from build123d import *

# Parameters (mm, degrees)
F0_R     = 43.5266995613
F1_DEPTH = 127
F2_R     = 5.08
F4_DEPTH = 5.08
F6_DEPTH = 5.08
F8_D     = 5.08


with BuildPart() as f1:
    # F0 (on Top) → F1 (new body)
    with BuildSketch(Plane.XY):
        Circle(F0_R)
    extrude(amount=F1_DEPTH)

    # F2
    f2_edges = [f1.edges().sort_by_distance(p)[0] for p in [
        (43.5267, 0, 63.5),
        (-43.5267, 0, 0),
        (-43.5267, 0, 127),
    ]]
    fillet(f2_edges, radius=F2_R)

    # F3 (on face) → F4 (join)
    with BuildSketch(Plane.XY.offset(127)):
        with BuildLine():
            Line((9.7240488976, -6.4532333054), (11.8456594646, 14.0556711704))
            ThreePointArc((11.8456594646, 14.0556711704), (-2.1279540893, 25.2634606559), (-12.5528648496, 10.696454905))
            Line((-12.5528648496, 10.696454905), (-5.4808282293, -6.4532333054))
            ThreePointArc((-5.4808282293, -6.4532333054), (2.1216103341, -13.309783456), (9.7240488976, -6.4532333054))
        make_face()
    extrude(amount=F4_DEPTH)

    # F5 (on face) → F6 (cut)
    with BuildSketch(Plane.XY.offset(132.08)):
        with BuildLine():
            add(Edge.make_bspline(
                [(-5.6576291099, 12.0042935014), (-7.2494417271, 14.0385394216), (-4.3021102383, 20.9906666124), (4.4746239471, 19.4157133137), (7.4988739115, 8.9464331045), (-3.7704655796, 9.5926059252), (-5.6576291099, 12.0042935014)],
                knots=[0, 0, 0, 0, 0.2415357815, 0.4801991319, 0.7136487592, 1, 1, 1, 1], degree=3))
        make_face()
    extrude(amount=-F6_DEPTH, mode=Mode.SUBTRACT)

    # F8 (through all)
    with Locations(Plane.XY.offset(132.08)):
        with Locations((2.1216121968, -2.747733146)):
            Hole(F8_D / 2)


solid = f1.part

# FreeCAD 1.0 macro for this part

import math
import FreeCAD as App
import Part
import Sketcher
Q = App.Units.Quantity

doc = App.newDocument("Part")
body = doc.addObject("PartDesign::Body", "Body")

# Sketch on XY plane
sketch1 = body.newObject("Sketcher::SketchObject", "Sketch")
sketch1.AttachmentSupport = (doc.getObject("XY_Plane"), [""])
sketch1.MapMode = "FlatFace"
sketch1.addGeometry(Part.Circle(App.Vector(0, 0, 0), App.Vector(0, 0, 1), 44), False)
sketch1.addConstraint([
    Sketcher.Constraint("Coincident", 0, 3, -1, 1),
    Sketcher.Constraint("Diameter", 0, Q("87.053399 mm")),
])
pad1 = body.newObject("PartDesign::Pad", "Pad")
pad1.Profile = sketch1
pad1.Length = Q("5 in")
doc.recompute()

fillet = body.newObject("PartDesign::Fillet", "Fillet")
fillet.Base = (pad1, ["Edge1"])
fillet.UseAllEdges = True
fillet.Radius = Q("0.2 in")

# Sketch on XY plane
sketch2 = body.newObject("Sketcher::SketchObject", "Sketch001")
sketch2.AttachmentSupport = (doc.getObject("XY_Plane"), [""])
sketch2.MapMode = "FlatFace"
sketch2.AttachmentOffset = App.Placement(App.Vector(0, 0, 5 * 25.4), App.Rotation())
sketch2.addGeometry([
    Part.LineSegment(App.Vector(10, -6, 0), App.Vector(12, 14, 0)),
    Part.ArcOfCircle(Part.Circle(App.Vector(0, 13, 0), App.Vector(0, 0, 1), 12), math.radians(5), math.radians(191)),
    Part.LineSegment(App.Vector(-13, 11, 0), App.Vector(-5, -6, 0)),
    Part.ArcOfCircle(Part.Circle(App.Vector(2, -6, 0), App.Vector(0, 0, 1), 8), math.radians(-174), math.radians(-6)),
], False)
sketch2.addConstraint([
    Sketcher.Constraint("Coincident", 0, 2, 1, 1),
    Sketcher.Constraint("Coincident", 1, 2, 2, 1),
    Sketcher.Constraint("Coincident", 2, 2, 3, 1),
    Sketcher.Constraint("Tangent", 3, 2, 0, 1),
    Sketcher.Constraint("Horizontal", 2, 2, 3, 2),
    Sketcher.Constraint("Radius", 1, Q("12.33289 mm")),
    Sketcher.Constraint("Radius", 3, Q("7.643009 mm")),
    Sketcher.Constraint("DistanceY", 3, 3, 1, 3, Q("18.712601 mm")),
    Sketcher.Constraint("Distance", 0, Q("20.618351 mm")),
    Sketcher.Constraint("Distance", 2, Q("18.55062 mm")),
    Sketcher.Constraint("DistanceX", -1, 1, 3, 3, Q("2.12161 mm")),
    Sketcher.Constraint("DistanceX", -1, 1, 0, 2, Q("11.845659 mm")),
    Sketcher.Constraint("DistanceY", -1, 1, 0, 2, Q("14.055671 mm")),
])
pad2 = body.newObject("PartDesign::Pad", "Pad001")
pad2.Profile = sketch2
pad2.Length = Q("0.2 in")

# Sketch on XY plane
sketch3 = body.newObject("Sketcher::SketchObject", "Sketch002")
sketch3.AttachmentSupport = (doc.getObject("XY_Plane"), [""])
sketch3.MapMode = "FlatFace"
sketch3.AttachmentOffset = App.Placement(App.Vector(0, 0, 5.2 * 25.4), App.Rotation())
sketch3.addGeometry(Part.BSplineCurve([App.Vector(-5.657629, 12.004294, 0), App.Vector(-7.249442, 14.038539, 0), App.Vector(-4.30211, 20.990667, 0), App.Vector(4.474624, 19.415713, 0), App.Vector(7.498874, 8.946433, 0), App.Vector(-3.770466, 9.592606, 0), App.Vector(-5.657629, 12.004294, 0)], [4, 1, 1, 1, 4], [0, 0.241535781, 0.480199132, 0.713648759, 1], False, 3, [1, 1, 1, 1, 1, 1, 1], False), False)
sketch3.addConstraint(Sketcher.Constraint("Block", 0))
pocket1 = body.newObject("PartDesign::Pocket", "Pocket")
pocket1.Profile = sketch3
pocket1.Length = Q("0.2 in")

# Sketch on XY plane
sketch4 = body.newObject("Sketcher::SketchObject", "Sketch003")
sketch4.AttachmentSupport = (doc.getObject("XY_Plane"), [""])
sketch4.MapMode = "FlatFace"
sketch4.AttachmentOffset = App.Placement(App.Vector(0, 0, 5.2 * 25.4), App.Rotation())
sketch4.addGeometry(Part.Circle(App.Vector(2.1, -2.7, 0), App.Vector(0, 0, 1), 2.5), False)
sketch4.addConstraint([
    Sketcher.Constraint("Diameter", 0, Q("0.2 in")),
    Sketcher.Constraint("DistanceX", -1, 1, 0, 3, Q("2.121612 mm")),
    Sketcher.Constraint("DistanceY", 0, 3, -1, 1, Q("2.747733 mm")),
])
doc.recompute()
hole = body.newObject("PartDesign::Hole", "Hole")
hole.Profile = sketch4
hole.ThreadType = "None"
hole.Diameter = Q("0.2 in")
hole.DepthType = "ThroughAll"

doc.recompute()
